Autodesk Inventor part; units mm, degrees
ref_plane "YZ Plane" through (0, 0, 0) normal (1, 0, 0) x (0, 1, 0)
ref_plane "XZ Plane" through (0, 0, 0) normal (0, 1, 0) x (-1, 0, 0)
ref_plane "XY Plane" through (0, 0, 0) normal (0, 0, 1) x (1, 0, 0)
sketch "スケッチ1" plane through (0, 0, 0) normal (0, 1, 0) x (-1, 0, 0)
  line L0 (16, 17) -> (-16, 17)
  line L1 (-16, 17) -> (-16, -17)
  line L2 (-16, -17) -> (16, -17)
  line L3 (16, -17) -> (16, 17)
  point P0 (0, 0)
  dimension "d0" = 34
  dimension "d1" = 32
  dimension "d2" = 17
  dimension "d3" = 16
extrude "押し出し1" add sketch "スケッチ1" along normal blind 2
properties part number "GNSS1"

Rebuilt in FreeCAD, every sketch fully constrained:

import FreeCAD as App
import Part
import Sketcher
from FreeCAD import Vector


def add_polygon(sketch, points):
    """Adds a closed chain of lines whose ends are joined by coincident constraints."""
    first, n = sketch.GeometryCount, len(points)
    for a, b in zip(points, points[1:] + points[:1]):
        sketch.addGeometry(Part.LineSegment(App.Vector(*a, 0), App.Vector(*b, 0)), False)
    for i in range(n):
        sketch.addConstraint(Sketcher.Constraint("Coincident", first + i, 2, first + (i + 1) % n, 1))

doc = App.newDocument("Part")
body = doc.addObject("PartDesign::Body", "Body")

# Sketch on XZ plane
sketch1 = body.newObject("Sketcher::SketchObject", "Sketch")
sketch1.AttachmentSupport = (doc.getObject("XZ_Plane"), [""])
sketch1.MapMode = "FlatFace"
add_polygon(sketch1, [(-16, -17), (-16, 17), (16, 17), (16, -17)])  # lines 0-3
sketch1.addConstraint([
    Sketcher.Constraint("Vertical", 0),
    Sketcher.Constraint("Horizontal", 1),
    Sketcher.Constraint("Vertical", 2),
    Sketcher.Constraint("Horizontal", 3),
    Sketcher.Constraint("Symmetric", 0, 2, 2, 2, -1, 1),
    Sketcher.Constraint("DistanceX", 1, 1, 1, 2, 32.0),
    Sketcher.Constraint("DistanceY", 0, 1, 0, 2, 34.0),
])
pad1 = body.newObject("PartDesign::Pad", "Pad")
pad1.Profile = sketch1
pad1.Length = 2
pad1.Reversed = True

doc.recompute()
